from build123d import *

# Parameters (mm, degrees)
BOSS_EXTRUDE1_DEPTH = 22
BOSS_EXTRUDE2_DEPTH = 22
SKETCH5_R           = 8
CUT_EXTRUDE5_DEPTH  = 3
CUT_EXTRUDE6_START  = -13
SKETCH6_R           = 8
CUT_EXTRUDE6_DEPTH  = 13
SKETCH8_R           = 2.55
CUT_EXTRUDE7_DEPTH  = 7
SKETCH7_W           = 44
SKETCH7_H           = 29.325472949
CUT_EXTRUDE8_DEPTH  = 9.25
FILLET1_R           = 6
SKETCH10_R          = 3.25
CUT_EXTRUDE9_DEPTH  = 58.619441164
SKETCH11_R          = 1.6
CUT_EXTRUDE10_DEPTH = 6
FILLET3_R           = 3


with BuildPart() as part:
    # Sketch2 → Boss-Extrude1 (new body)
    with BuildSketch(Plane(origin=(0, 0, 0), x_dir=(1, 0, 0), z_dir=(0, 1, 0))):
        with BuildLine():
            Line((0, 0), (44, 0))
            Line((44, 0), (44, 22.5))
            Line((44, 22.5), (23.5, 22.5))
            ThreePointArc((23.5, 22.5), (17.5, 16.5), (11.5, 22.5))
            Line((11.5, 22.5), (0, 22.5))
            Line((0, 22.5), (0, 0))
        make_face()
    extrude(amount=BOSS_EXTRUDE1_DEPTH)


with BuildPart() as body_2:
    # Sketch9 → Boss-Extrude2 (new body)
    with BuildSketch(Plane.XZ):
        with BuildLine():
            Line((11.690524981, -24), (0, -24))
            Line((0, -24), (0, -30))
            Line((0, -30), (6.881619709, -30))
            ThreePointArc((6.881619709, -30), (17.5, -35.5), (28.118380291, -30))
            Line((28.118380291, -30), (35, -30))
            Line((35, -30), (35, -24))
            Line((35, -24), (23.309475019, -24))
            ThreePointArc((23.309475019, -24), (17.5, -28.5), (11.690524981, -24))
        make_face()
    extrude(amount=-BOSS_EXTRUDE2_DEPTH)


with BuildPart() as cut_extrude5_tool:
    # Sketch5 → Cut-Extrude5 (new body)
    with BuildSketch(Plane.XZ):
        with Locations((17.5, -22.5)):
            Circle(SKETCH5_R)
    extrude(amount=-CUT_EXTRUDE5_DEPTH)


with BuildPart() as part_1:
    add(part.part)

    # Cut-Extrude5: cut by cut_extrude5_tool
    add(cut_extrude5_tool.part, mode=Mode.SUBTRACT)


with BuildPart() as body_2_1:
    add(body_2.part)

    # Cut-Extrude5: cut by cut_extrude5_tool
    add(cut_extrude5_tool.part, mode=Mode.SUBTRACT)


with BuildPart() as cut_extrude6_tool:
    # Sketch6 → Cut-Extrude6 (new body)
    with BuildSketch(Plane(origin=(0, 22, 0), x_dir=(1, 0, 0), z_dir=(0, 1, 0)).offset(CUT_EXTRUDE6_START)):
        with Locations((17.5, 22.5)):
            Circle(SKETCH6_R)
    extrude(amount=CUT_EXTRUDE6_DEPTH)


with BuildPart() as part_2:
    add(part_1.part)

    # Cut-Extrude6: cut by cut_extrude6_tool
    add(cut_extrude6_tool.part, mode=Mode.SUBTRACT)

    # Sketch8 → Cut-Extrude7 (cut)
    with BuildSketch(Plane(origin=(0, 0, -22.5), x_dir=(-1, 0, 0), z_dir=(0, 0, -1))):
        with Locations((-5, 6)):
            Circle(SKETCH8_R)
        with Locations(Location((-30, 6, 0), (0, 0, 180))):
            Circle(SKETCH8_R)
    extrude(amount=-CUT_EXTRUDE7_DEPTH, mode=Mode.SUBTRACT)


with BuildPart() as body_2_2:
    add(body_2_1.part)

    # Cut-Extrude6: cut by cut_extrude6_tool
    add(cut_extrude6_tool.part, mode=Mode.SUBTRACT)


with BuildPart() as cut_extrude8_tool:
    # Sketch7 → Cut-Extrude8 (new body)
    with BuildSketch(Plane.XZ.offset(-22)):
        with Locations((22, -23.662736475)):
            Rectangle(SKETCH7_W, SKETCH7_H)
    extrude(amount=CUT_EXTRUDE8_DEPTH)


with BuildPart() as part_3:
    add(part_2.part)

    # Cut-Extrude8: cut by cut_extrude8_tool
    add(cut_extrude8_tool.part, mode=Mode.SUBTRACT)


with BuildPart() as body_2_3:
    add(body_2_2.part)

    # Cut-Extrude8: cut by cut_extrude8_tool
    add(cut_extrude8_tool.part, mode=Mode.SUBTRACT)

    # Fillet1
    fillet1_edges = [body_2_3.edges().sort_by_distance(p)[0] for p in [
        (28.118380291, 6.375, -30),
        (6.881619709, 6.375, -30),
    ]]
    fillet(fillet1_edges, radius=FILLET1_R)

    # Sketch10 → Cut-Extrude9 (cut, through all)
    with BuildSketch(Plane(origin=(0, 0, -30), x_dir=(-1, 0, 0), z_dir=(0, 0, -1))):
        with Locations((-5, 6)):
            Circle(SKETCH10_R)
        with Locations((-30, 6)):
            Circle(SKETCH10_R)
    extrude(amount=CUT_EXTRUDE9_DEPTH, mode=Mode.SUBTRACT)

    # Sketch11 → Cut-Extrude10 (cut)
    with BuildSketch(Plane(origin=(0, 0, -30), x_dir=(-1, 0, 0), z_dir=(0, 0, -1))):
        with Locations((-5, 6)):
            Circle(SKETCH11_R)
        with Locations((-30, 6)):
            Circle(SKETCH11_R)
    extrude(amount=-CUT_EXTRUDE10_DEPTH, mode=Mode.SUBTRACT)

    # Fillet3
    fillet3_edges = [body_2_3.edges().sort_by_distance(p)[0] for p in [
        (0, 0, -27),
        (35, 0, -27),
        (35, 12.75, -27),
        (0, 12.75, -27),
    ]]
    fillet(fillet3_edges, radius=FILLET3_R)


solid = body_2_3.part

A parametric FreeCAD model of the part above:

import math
import FreeCAD as App
import Part
import Sketcher
Q = App.Units.Quantity


def edges_at(feature, points):
    """Names of the edges that pass closest to the given points."""
    edges = feature.Shape.Edges
    near = lambda p: min(range(len(edges)), key=lambda i: edges[i].distToShape(Part.Vertex(*p))[0])
    return sorted({f"Edge{near(p) + 1}" for p in points})


def add_polygon(sketch, points):
    """Adds a closed chain of lines whose ends are joined by coincident constraints."""
    first, n = sketch.GeometryCount, len(points)
    for a, b in zip(points, points[1:] + points[:1]):
        sketch.addGeometry(Part.LineSegment(App.Vector(*a, 0), App.Vector(*b, 0)), False)
    for i in range(n):
        sketch.addConstraint(Sketcher.Constraint("Coincident", first + i, 2, first + (i + 1) % n, 1))

doc = App.newDocument("Part")
body = doc.addObject("PartDesign::Body", "Body")

sketch1 = doc.addObject("Sketcher::SketchObject", "Sketch")
body.addObject(sketch1)
sketch1.AttachmentSupport = (doc.XZ_Plane, [""])
sketch1.MapMode = "FlatFace"
sketch1.addGeometry([
    Part.LineSegment(App.Vector(0, 0, 0), App.Vector(44, 0, 0)),
    Part.LineSegment(App.Vector(44, 0, 0), App.Vector(44, -22.5, 0)),
    Part.LineSegment(App.Vector(44, -22.5, 0), App.Vector(23.5, -22.5, 0)),
    Part.ArcOfCircle(Part.Circle(App.Vector(17.5, -22.5, 0), App.Vector(0, 0, 1), 6), math.radians(0), math.radians(180)),
    Part.LineSegment(App.Vector(11.5, -22.5, 0), App.Vector(0, -22.5, 0)),
    Part.LineSegment(App.Vector(0, -22.5, 0), App.Vector(0, 0, 0)),
], False)
sketch1.addConstraint([
    Sketcher.Constraint("Coincident", 0, 2, 1, 1),
    Sketcher.Constraint("Coincident", 1, 2, 2, 1),
    Sketcher.Constraint("Coincident", 2, 2, 3, 1),
    Sketcher.Constraint("Coincident", 3, 2, 4, 1),
    Sketcher.Constraint("Coincident", 4, 2, 5, 1),
    Sketcher.Constraint("Coincident", 5, 2, 0, 1),
    Sketcher.Constraint("Horizontal", 0),
    Sketcher.Constraint("Vertical", 1),
    Sketcher.Constraint("Horizontal", 2),
    Sketcher.Constraint("Horizontal", 4),
    Sketcher.Constraint("Vertical", 5),
    Sketcher.Constraint("Coincident", 5, 2, -1, 1),
    Sketcher.Constraint("Horizontal", 3, 3, 1, 2),
    Sketcher.Constraint("Horizontal", 2, 2, 3, 2),
    Sketcher.Constraint("Radius", 3, Q("6 mm")),
    Sketcher.Constraint("DistanceX", 0, 1, 0, 2, Q("44 mm")),
    Sketcher.Constraint("DistanceX", 2, 2, 2, 1, Q("20.5 mm")),
    Sketcher.Constraint("DistanceY", 1, 2, 1, 1, Q("22.5 mm")),
])
pad1 = doc.addObject("PartDesign::Pad", "Pad")
body.addObject(pad1)
pad1.Profile = sketch1
pad1.Length = 22
pad1.Reversed = True
body2 = doc.addObject("PartDesign::Body", "Body001")

sketch2 = doc.addObject("Sketcher::SketchObject", "Sketch001")
body2.addObject(sketch2)
sketch2.AttachmentSupport = (doc.getObject("XZ_Plane001"), [""])
sketch2.MapMode = "FlatFace"
sketch2.addGeometry([
    Part.LineSegment(App.Vector(11.690525, -24, 0), App.Vector(0, -24, 0)),
    Part.LineSegment(App.Vector(0, -24, 0), App.Vector(0, -30, 0)),
    Part.LineSegment(App.Vector(0, -30, 0), App.Vector(6.88162, -30, 0)),
    Part.ArcOfCircle(Part.Circle(App.Vector(17.5, -22.5, 0), App.Vector(0, 0, 1), 13), math.radians(-144.765582), math.radians(-35.234418)),
    Part.LineSegment(App.Vector(28.11838, -30, 0), App.Vector(35, -30, 0)),
    Part.LineSegment(App.Vector(35, -30, 0), App.Vector(35, -24, 0)),
    Part.LineSegment(App.Vector(35, -24, 0), App.Vector(23.309475, -24, 0)),
    Part.ArcOfCircle(Part.Circle(App.Vector(17.5, -22.5, 0), App.Vector(0, 0, 1), 6), math.radians(-165.522488), math.radians(-14.477512)),
], False)
sketch2.addConstraint([
    Sketcher.Constraint("Coincident", 0, 2, 1, 1),
    Sketcher.Constraint("Coincident", 1, 2, 2, 1),
    Sketcher.Constraint("Coincident", 2, 2, 3, 1),
    Sketcher.Constraint("Coincident", 3, 2, 4, 1),
    Sketcher.Constraint("Coincident", 4, 2, 5, 1),
    Sketcher.Constraint("Coincident", 5, 2, 6, 1),
    Sketcher.Constraint("Coincident", 6, 2, 7, 2),
    Sketcher.Constraint("Coincident", 7, 1, 0, 1),
    Sketcher.Constraint("Horizontal", 0),
    Sketcher.Constraint("Vertical", 1),
    Sketcher.Constraint("Horizontal", 2),
    Sketcher.Constraint("Horizontal", 4),
    Sketcher.Constraint("Vertical", 5),
    Sketcher.Constraint("Horizontal", 6),
    Sketcher.Constraint("Coincident", 7, 3, 3, 3),
    Sketcher.Constraint("PointOnObject", 0, 2, -2),
    Sketcher.Constraint("Horizontal", 2, 2, 3, 2),
    Sketcher.Constraint("Horizontal", 0, 2, 5, 2),
    Sketcher.Constraint("Equal", 2, 4),
    Sketcher.Constraint("Radius", 3, Q("13 mm")),
    Sketcher.Constraint("Radius", 7, Q("6 mm")),
    Sketcher.Constraint("DistanceY", 1, 2, 1, 1, Q("6 mm")),
    Sketcher.Constraint("DistanceY", 0, 2, -1, 1, Q("24 mm")),
    Sketcher.Constraint("DistanceX", -1, 1, 4, 2, Q("35 mm")),
    Sketcher.Constraint("DistanceY", 3, 3, -1, 1, Q("22.5 mm")),
])
pad2 = doc.addObject("PartDesign::Pad", "Pad001")
body2.addObject(pad2)
pad2.Profile = sketch2
pad2.Length = 22
pad2.Reversed = True
body3 = doc.addObject("PartDesign::Body", "Body002")

sketch3 = doc.addObject("Sketcher::SketchObject", "Sketch002")
body3.addObject(sketch3)
sketch3.AttachmentSupport = (doc.getObject("XZ_Plane002"), [""])
sketch3.MapMode = "FlatFace"
sketch3.addGeometry(Part.Circle(App.Vector(17.5, -22.5, 0), App.Vector(0, 0, 1), 8), False)
sketch3.addConstraint([
    Sketcher.Constraint("Diameter", 0, Q("16 mm")),
    Sketcher.Constraint("DistanceX", -1, 1, 0, 3, Q("17.5 mm")),
    Sketcher.Constraint("DistanceY", 0, 3, -1, 1, Q("22.5 mm")),
])
pad3 = doc.addObject("PartDesign::Pad", "Pad002")
body3.addObject(pad3)
pad3.Profile = sketch3
pad3.Length = 3
pad3.Reversed = True
doc.recompute()

body4 = doc.addObject("PartDesign::Body", "Body003")
body4.BaseFeature = body3
boolean = doc.addObject("PartDesign::Boolean", "Boolean")
body.addObject(boolean)
boolean.Type = "Cut"
boolean.addObjects([body4])
doc.recompute()

boolean2 = doc.addObject("PartDesign::Boolean", "Boolean001")
body2.addObject(boolean2)
boolean2.Type = "Cut"
boolean2.addObjects([body3])
body5 = doc.addObject("PartDesign::Body", "Body004")

sketch4 = doc.addObject("Sketcher::SketchObject", "Sketch003")
body5.addObject(sketch4)
sketch4.AttachmentSupport = (doc.getObject("XZ_Plane004"), [""])
sketch4.MapMode = "FlatFace"
sketch4.AttachmentOffset = App.Placement(App.Vector(0, 0, -9), App.Rotation())
sketch4.addGeometry(Part.Circle(App.Vector(17.5, -22.5, 0), App.Vector(0, 0, 1), 8), False)
sketch4.addConstraint([
    Sketcher.Constraint("Diameter", 0, Q("16 mm")),
    Sketcher.Constraint("DistanceX", -1, 1, 0, 3, Q("17.5 mm")),
    Sketcher.Constraint("DistanceY", 0, 3, -1, 1, Q("22.5 mm")),
])
pad4 = doc.addObject("PartDesign::Pad", "Pad003")
body5.addObject(pad4)
pad4.Profile = sketch4
pad4.Length = 13
pad4.Reversed = True
doc.recompute()

body6 = doc.addObject("PartDesign::Body", "Body005")
body6.BaseFeature = body5
boolean3 = doc.addObject("PartDesign::Boolean", "Boolean002")
body.addObject(boolean3)
boolean3.Type = "Cut"
boolean3.addObjects([body6])
doc.recompute()

sketch5 = doc.addObject("Sketcher::SketchObject", "Sketch004")
body.addObject(sketch5)
sketch5.AttachmentSupport = (doc.XY_Plane, [""])
sketch5.MapMode = "FlatFace"
sketch5.AttachmentOffset = App.Placement(App.Vector(0, 0, -22.5), App.Rotation())
sketch5.addGeometry([
    Part.Circle(App.Vector(5, 6, 0), App.Vector(0, 0, 1), 2.55),
    Part.Circle(App.Vector(30, 6, 0), App.Vector(0, 0, 1), 2.55),
], False)
sketch5.addConstraint([
    Sketcher.Constraint("Equal", 0, 1),
    Sketcher.Constraint("Horizontal", 0, 3, 1, 3),
    Sketcher.Constraint("Diameter", 0, Q("5.1 mm")),
    Sketcher.Constraint("DistanceX", -1, 1, 0, 3, Q("5 mm")),
    Sketcher.Constraint("DistanceY", -1, 1, 0, 3, Q("6 mm")),
    Sketcher.Constraint("DistanceX", -1, 1, 1, 3, Q("30 mm")),
])
pocket1 = doc.addObject("PartDesign::Pocket", "Pocket")
body.addObject(pocket1)
pocket1.Profile = sketch5
pocket1.Length = 7
pocket1.Reversed = True
doc.recompute()

boolean4 = doc.addObject("PartDesign::Boolean", "Boolean003")
body2.addObject(boolean4)
boolean4.Type = "Cut"
boolean4.addObjects([body5])
body7 = doc.addObject("PartDesign::Body", "Body006")

sketch6 = doc.addObject("Sketcher::SketchObject", "Sketch005")
body7.addObject(sketch6)
sketch6.AttachmentSupport = (doc.getObject("XZ_Plane006"), [""])
sketch6.MapMode = "FlatFace"
sketch6.AttachmentOffset = App.Placement(App.Vector(0, 0, -22), App.Rotation())
add_polygon(sketch6, [(0, -9), (0, -38.325473), (44, -38.325473), (44, -9)])
sketch6.addConstraint([
    Sketcher.Constraint("Vertical", 0),
    Sketcher.Constraint("Horizontal", 1),
    Sketcher.Constraint("Vertical", 2),
    Sketcher.Constraint("Horizontal", 3),
    Sketcher.Constraint("PointOnObject", 0, 2, -2),
    Sketcher.Constraint("DistanceX", 1, 1, 1, 2, Q("44 mm")),
    Sketcher.Constraint("DistanceY", 2, 2, -1, 1, Q("9 mm")),
    Sketcher.Constraint("DistanceY", 0, 2, 0, 1, Q("29.325473 mm")),
])
pad5 = doc.addObject("PartDesign::Pad", "Pad004")
body7.addObject(pad5)
pad5.Profile = sketch6
pad5.Length = 9.25
doc.recompute()

body8 = doc.addObject("PartDesign::Body", "Body007")
body8.BaseFeature = body7
boolean5 = doc.addObject("PartDesign::Boolean", "Boolean004")
body.addObject(boolean5)
boolean5.Type = "Cut"
boolean5.addObjects([body8])
doc.recompute()

boolean6 = doc.addObject("PartDesign::Boolean", "Boolean005")
body2.addObject(boolean6)
boolean6.Type = "Cut"
boolean6.addObjects([body7])
doc.recompute()

fillet = doc.addObject("PartDesign::Fillet", "Fillet")
body2.addObject(fillet)
fillet.Base = (boolean6, edges_at(boolean6, [(28.118, 6.375, -30), (6.882, 6.375, -30)]))
fillet.Radius = 6

sketch7 = doc.addObject("Sketcher::SketchObject", "Sketch006")
body2.addObject(sketch7)
sketch7.AttachmentSupport = (doc.getObject("XY_Plane001"), [""])
sketch7.MapMode = "FlatFace"
sketch7.AttachmentOffset = App.Placement(App.Vector(0, 0, -30), App.Rotation())
sketch7.addGeometry([
    Part.Circle(App.Vector(5, 6, 0), App.Vector(0, 0, 1), 3.25),
    Part.Circle(App.Vector(30, 6, 0), App.Vector(0, 0, 1), 3.25),
], False)
sketch7.addConstraint([
    Sketcher.Constraint("Equal", 0, 1),
    Sketcher.Constraint("Horizontal", 0, 3, 1, 3),
    Sketcher.Constraint("Diameter", 0, Q("6.5 mm")),
    Sketcher.Constraint("DistanceX", -1, 1, 0, 3, Q("5 mm")),
    Sketcher.Constraint("DistanceY", -1, 1, 0, 3, Q("6 mm")),
    Sketcher.Constraint("DistanceX", -1, 1, 1, 3, Q("30 mm")),
])
pocket2 = doc.addObject("PartDesign::Pocket", "Pocket001")
body2.addObject(pocket2)
pocket2.Profile = sketch7
pocket2.Type = "ThroughAll"

sketch8 = doc.addObject("Sketcher::SketchObject", "Sketch007")
body2.addObject(sketch8)
sketch8.AttachmentSupport = (doc.getObject("XY_Plane001"), [""])
sketch8.MapMode = "FlatFace"
sketch8.AttachmentOffset = App.Placement(App.Vector(0, 0, -30), App.Rotation())
sketch8.addGeometry([
    Part.Circle(App.Vector(5, 6, 0), App.Vector(0, 0, 1), 1.6),
    Part.Circle(App.Vector(30, 6, 0), App.Vector(0, 0, 1), 1.6),
], False)
sketch8.addConstraint([
    Sketcher.Constraint("Equal", 0, 1),
    Sketcher.Constraint("Horizontal", 0, 3, 1, 3),
    Sketcher.Constraint("Diameter", 0, Q("3.2 mm")),
    Sketcher.Constraint("DistanceX", -1, 1, 0, 3, Q("5 mm")),
    Sketcher.Constraint("DistanceY", -1, 1, 0, 3, Q("6 mm")),
    Sketcher.Constraint("DistanceX", -1, 1, 1, 3, Q("30 mm")),
])
pocket3 = doc.addObject("PartDesign::Pocket", "Pocket002")
body2.addObject(pocket3)
pocket3.Profile = sketch8
pocket3.Length = 6
pocket3.Reversed = True
doc.recompute()

fillet2 = doc.addObject("PartDesign::Fillet", "Fillet001")
body2.addObject(fillet2)
fillet2.Base = (pocket3, edges_at(pocket3, [
    (0, 0, -27),
    (35, 0, -27),
    (35, 12.75, -27),
    (0, 12.75, -27),
]))
fillet2.Radius = 3
body.Visibility = False

doc.recompute()
